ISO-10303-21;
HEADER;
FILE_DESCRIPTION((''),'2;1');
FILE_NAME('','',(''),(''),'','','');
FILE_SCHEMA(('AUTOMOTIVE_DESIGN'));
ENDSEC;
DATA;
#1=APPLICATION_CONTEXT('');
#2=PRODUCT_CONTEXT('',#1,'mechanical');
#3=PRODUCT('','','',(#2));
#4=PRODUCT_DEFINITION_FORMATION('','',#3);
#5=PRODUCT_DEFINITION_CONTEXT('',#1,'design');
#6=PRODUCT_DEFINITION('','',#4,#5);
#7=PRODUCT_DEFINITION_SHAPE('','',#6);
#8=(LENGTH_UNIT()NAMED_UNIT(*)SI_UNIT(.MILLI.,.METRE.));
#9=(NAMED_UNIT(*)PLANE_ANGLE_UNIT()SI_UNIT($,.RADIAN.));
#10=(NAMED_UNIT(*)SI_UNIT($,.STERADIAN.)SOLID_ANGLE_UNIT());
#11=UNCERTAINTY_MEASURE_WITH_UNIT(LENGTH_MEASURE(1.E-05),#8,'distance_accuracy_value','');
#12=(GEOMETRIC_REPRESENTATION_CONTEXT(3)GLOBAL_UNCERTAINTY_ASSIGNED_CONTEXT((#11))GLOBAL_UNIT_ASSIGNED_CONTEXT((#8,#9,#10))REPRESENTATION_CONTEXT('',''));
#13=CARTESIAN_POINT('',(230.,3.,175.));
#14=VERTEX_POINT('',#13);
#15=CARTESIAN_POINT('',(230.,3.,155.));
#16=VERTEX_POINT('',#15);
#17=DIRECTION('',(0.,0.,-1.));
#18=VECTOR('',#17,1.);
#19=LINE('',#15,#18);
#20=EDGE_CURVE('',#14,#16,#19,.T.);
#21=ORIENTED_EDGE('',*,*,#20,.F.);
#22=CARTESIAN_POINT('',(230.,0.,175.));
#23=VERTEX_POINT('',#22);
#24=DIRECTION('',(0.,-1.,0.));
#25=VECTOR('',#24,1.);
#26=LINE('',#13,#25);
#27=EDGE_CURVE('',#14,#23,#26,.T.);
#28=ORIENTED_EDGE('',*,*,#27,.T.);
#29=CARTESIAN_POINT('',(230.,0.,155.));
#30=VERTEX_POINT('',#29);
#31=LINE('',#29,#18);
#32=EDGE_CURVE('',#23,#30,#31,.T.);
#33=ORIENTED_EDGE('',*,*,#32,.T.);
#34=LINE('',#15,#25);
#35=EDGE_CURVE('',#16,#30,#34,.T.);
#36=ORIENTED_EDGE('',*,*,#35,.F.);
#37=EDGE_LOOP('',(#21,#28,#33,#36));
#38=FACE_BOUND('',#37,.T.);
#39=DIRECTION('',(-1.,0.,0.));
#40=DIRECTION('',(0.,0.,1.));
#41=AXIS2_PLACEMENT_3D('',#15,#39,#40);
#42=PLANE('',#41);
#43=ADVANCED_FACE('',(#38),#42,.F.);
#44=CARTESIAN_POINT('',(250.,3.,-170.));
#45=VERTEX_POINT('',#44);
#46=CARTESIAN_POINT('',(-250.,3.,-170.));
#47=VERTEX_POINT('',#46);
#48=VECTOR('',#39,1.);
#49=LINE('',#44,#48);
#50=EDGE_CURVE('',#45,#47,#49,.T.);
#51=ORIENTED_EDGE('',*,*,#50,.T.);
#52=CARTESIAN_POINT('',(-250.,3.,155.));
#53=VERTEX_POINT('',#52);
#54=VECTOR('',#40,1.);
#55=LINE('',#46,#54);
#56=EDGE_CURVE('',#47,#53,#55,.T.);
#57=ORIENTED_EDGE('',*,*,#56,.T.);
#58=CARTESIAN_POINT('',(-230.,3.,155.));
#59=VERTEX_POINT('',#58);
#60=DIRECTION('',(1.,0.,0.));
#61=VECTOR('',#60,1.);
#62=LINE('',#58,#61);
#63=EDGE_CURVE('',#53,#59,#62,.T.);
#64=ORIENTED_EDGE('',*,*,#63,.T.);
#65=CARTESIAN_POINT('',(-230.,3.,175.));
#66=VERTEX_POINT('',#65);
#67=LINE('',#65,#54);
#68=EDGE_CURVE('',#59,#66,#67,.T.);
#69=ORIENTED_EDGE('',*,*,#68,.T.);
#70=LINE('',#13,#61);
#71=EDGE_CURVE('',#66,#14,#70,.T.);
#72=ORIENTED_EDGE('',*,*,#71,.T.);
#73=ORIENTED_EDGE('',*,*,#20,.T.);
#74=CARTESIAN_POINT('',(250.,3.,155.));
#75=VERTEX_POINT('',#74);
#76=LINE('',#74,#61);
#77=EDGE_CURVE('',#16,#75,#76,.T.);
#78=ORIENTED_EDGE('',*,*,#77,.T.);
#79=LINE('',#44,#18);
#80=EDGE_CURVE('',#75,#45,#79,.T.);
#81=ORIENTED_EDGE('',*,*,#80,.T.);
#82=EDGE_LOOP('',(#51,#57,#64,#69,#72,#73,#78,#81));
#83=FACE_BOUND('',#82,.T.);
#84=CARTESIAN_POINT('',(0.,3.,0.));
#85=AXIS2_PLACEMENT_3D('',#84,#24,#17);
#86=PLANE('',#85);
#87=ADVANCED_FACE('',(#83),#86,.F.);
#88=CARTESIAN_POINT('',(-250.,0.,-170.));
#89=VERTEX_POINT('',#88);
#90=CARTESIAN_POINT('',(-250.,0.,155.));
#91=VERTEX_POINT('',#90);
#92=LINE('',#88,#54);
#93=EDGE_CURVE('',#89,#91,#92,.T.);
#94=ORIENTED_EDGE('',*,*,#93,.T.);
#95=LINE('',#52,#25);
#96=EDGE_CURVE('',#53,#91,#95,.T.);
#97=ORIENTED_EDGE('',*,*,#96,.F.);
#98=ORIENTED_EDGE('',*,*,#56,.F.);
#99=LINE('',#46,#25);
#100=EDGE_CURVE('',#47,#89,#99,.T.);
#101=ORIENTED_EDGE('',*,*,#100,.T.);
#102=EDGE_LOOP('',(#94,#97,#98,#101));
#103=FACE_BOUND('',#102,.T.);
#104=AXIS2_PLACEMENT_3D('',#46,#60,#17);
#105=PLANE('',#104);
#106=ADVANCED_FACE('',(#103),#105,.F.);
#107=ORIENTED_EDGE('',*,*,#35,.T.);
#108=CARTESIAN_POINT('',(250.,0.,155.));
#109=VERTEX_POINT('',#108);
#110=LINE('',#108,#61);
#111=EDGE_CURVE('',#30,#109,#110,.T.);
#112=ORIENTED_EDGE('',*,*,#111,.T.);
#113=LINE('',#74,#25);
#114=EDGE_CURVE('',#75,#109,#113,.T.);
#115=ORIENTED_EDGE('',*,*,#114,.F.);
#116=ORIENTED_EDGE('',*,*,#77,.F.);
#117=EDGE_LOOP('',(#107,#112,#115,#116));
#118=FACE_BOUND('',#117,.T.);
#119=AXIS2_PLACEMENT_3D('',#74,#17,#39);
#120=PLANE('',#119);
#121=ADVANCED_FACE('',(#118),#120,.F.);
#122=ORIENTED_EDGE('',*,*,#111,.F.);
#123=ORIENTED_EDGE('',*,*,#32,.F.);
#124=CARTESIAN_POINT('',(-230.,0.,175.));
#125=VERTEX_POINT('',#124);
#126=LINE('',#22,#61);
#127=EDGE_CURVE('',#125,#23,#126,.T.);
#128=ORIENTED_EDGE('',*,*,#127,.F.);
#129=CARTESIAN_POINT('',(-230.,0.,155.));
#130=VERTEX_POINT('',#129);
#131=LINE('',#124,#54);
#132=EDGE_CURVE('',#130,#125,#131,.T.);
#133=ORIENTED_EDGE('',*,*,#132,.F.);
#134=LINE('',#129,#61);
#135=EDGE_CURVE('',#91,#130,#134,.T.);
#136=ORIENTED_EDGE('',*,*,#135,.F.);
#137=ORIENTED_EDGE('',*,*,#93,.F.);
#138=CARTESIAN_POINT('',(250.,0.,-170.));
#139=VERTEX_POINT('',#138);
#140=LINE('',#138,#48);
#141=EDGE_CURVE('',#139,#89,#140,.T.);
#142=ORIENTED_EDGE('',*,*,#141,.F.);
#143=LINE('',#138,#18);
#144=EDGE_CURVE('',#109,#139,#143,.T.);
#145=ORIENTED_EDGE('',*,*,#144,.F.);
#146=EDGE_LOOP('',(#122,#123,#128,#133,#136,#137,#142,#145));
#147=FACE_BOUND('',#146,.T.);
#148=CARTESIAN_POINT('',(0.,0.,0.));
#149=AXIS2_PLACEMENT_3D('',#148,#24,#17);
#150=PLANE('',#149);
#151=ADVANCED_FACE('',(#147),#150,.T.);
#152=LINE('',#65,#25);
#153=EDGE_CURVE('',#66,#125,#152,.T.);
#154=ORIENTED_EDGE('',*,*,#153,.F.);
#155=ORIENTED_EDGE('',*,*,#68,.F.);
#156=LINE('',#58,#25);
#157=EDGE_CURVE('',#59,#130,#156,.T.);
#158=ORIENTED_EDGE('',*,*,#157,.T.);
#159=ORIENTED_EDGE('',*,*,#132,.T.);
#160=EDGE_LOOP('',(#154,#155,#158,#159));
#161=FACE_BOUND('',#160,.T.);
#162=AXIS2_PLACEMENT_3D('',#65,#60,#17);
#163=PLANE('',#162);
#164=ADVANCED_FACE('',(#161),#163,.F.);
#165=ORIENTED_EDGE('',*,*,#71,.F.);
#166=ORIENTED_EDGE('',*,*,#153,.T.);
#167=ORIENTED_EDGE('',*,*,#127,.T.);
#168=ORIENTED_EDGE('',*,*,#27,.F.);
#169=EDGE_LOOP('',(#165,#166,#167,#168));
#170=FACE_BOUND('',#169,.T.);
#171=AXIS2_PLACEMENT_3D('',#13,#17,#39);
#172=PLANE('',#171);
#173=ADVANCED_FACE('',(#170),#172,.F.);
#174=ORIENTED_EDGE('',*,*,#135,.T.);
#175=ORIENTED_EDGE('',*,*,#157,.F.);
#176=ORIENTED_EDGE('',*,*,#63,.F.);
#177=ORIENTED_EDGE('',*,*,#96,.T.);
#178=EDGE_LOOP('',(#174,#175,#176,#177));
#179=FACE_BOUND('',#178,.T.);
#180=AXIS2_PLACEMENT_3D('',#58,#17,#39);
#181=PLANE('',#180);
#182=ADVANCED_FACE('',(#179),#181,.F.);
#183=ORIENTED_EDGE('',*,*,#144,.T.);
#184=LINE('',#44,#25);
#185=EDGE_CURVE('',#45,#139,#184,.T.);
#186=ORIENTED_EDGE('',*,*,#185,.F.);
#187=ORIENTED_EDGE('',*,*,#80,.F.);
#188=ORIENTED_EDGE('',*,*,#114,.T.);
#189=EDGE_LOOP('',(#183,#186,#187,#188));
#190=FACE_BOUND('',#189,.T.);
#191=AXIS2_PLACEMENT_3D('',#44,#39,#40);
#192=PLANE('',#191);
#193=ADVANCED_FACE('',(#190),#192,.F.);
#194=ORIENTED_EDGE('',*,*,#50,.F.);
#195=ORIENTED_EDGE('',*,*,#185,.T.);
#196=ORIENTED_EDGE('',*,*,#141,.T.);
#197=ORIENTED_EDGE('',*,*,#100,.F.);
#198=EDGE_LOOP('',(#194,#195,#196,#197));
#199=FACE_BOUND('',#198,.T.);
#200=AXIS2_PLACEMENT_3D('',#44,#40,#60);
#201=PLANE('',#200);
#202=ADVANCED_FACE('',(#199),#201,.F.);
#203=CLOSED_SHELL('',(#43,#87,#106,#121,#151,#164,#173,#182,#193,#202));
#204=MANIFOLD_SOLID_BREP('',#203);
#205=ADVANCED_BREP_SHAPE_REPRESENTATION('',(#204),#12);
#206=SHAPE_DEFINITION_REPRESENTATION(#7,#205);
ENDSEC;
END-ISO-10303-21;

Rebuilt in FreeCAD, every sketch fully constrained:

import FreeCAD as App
import Part
import Sketcher
Q = App.Units.Quantity

doc = App.newDocument("Part")
params = doc.addObject("Spreadsheet::Sheet", "Params")
for row, (alias, value) in enumerate([
    ("sketch1_width", "20 mm"),
    ("sketch1_width2", "500 mm"),
    ("sketch1_height", "325 mm"),
    ("pad1_length", "3 mm"),
], start=1):
    params.set(f"A{row}", alias)
    params.set(f"B{row}", "=" + value)
    params.setAlias(f"B{row}", alias)

body = doc.addObject("PartDesign::Body", "Body")

# Sketch on XZ plane
sketch1 = body.newObject("Sketcher::SketchObject", "Sketch")
sketch1.AttachmentSupport = (doc.getObject("XZ_Plane"), [""])
sketch1.MapMode = "FlatFace"
sketch1.addGeometry(Part.LineSegment(App.Vector(230, 155, 0), App.Vector(250, 155, 0)), False)
sketch1.addGeometry(Part.LineSegment(App.Vector(250, 155, 0), App.Vector(250, -170, 0)), False)
sketch1.addGeometry(Part.LineSegment(App.Vector(250, -170, 0), App.Vector(-250, -170, 0)), False)
sketch1.addGeometry(Part.LineSegment(App.Vector(-250, -170, 0), App.Vector(-250, 155, 0)), False)
sketch1.addGeometry(Part.LineSegment(App.Vector(-250, 155, 0), App.Vector(-230, 155, 0)), False)
sketch1.addGeometry(Part.LineSegment(App.Vector(-230, 155, 0), App.Vector(-230, 175, 0)), False)
sketch1.addGeometry(Part.LineSegment(App.Vector(-230, 175, 0), App.Vector(230, 175, 0)), False)
sketch1.addGeometry(Part.LineSegment(App.Vector(230, 175, 0), App.Vector(230, 155, 0)), False)
sketch1.addConstraint(Sketcher.Constraint("Coincident", 0, 2, 1, 1))
sketch1.addConstraint(Sketcher.Constraint("Coincident", 1, 2, 2, 1))
sketch1.addConstraint(Sketcher.Constraint("Coincident", 2, 2, 3, 1))
sketch1.addConstraint(Sketcher.Constraint("Coincident", 3, 2, 4, 1))
sketch1.addConstraint(Sketcher.Constraint("Coincident", 4, 2, 5, 1))
sketch1.addConstraint(Sketcher.Constraint("Coincident", 5, 2, 6, 1))
sketch1.addConstraint(Sketcher.Constraint("Coincident", 6, 2, 7, 1))
sketch1.addConstraint(Sketcher.Constraint("Coincident", 7, 2, 0, 1))
sketch1.addConstraint(Sketcher.Constraint("Horizontal", 0))
sketch1.addConstraint(Sketcher.Constraint("Vertical", 1))
sketch1.addConstraint(Sketcher.Constraint("Horizontal", 2))
sketch1.addConstraint(Sketcher.Constraint("Vertical", 3))
sketch1.addConstraint(Sketcher.Constraint("Horizontal", 4))
sketch1.addConstraint(Sketcher.Constraint("Vertical", 5))
sketch1.addConstraint(Sketcher.Constraint("Horizontal", 6))
sketch1.addConstraint(Sketcher.Constraint("Vertical", 7))
sketch1.addConstraint(Sketcher.Constraint("Symmetric", 0, 2, 3, 2, -2))
sketch1.addConstraint(Sketcher.Constraint("Equal", 0, 4))
sketch1.addConstraint(Sketcher.Constraint("Equal", 4, 5))
sketch1.addConstraint(Sketcher.Constraint("DistanceX", 0, 1, 0, 2, Q("20 mm")))
sketch1.addConstraint(Sketcher.Constraint("DistanceX", 2, 2, 2, 1, Q("500 mm")))
sketch1.addConstraint(Sketcher.Constraint("DistanceY", 1, 2, 1, 1, Q("325 mm")))
sketch1.addConstraint(Sketcher.Constraint("DistanceY", -1, 1, 0, 2, Q("155 mm")))
sketch1.setExpression("Constraints[19]", "Params.sketch1_width")
sketch1.setExpression("Constraints[20]", "Params.sketch1_width2")
sketch1.setExpression("Constraints[21]", "Params.sketch1_height")
pad1 = body.newObject("PartDesign::Pad", "Pad")
pad1.Profile = sketch1
pad1.setExpression("Length", "Params.pad1_length")
pad1.Reversed = True

doc.recompute()
